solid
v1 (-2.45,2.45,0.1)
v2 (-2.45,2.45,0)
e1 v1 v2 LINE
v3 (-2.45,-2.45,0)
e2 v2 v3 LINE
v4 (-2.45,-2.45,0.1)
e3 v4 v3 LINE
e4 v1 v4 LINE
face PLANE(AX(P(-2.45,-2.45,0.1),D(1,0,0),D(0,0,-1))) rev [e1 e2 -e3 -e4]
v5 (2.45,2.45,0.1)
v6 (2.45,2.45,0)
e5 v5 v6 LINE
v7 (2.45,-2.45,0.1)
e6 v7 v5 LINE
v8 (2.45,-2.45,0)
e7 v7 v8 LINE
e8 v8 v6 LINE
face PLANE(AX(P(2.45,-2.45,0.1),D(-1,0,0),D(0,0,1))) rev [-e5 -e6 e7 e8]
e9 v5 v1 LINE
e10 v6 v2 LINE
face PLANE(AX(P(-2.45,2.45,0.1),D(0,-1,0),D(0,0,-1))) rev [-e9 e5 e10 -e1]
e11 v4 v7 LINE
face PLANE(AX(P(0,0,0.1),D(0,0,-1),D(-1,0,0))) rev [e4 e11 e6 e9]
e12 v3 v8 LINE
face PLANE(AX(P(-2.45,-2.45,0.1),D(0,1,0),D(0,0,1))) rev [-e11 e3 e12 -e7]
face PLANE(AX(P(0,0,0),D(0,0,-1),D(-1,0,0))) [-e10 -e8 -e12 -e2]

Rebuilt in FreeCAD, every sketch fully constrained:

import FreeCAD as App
import Part
import Sketcher

doc = App.newDocument("Part")
params = doc.addObject("Spreadsheet::Sheet", "Params")
for row, (alias, value) in enumerate([
    ("sketch1_width", "4.9 mm"),
    ("pad1_length", "0.1 mm"),
], start=1):
    params.set(f"A{row}", alias)
    params.set(f"B{row}", "=" + value)
    params.setAlias(f"B{row}", alias)

body = doc.addObject("PartDesign::Body", "Body")

# Sketch on XY plane
sketch1 = body.newObject("Sketcher::SketchObject", "Sketch")
sketch1.AttachmentSupport = (doc.getObject("XY_Plane"), [""])
sketch1.MapMode = "FlatFace"
sketch1.addGeometry(Part.LineSegment(App.Vector(-2.5, 2.5, 0), App.Vector(-2.5, -2.5, 0)), False)
sketch1.addGeometry(Part.LineSegment(App.Vector(-2.5, -2.5, 0), App.Vector(2.5, -2.5, 0)), False)
sketch1.addGeometry(Part.LineSegment(App.Vector(2.5, -2.5, 0), App.Vector(2.5, 2.5, 0)), False)
sketch1.addGeometry(Part.LineSegment(App.Vector(2.5, 2.5, 0), App.Vector(-2.5, 2.5, 0)), False)
sketch1.addConstraint(Sketcher.Constraint("Coincident", 0, 2, 1, 1))
sketch1.addConstraint(Sketcher.Constraint("Coincident", 1, 2, 2, 1))
sketch1.addConstraint(Sketcher.Constraint("Coincident", 2, 2, 3, 1))
sketch1.addConstraint(Sketcher.Constraint("Coincident", 3, 2, 0, 1))
sketch1.addConstraint(Sketcher.Constraint("Vertical", 0))
sketch1.addConstraint(Sketcher.Constraint("Horizontal", 1))
sketch1.addConstraint(Sketcher.Constraint("Vertical", 2))
sketch1.addConstraint(Sketcher.Constraint("Horizontal", 3))
sketch1.addConstraint(Sketcher.Constraint("Symmetric", 0, 2, 2, 2, -1, 1))
sketch1.addConstraint(Sketcher.Constraint("Equal", 3, 0))
sketch1.addConstraint(Sketcher.Constraint("DistanceX", 1, 1, 1, 2, 4.9))
sketch1.setExpression("Constraints[10]", "Params.sketch1_width")
pad1 = body.newObject("PartDesign::Pad", "Pad")
pad1.Profile = sketch1
pad1.setExpression("Length", "Params.pad1_length")

doc.recompute()
